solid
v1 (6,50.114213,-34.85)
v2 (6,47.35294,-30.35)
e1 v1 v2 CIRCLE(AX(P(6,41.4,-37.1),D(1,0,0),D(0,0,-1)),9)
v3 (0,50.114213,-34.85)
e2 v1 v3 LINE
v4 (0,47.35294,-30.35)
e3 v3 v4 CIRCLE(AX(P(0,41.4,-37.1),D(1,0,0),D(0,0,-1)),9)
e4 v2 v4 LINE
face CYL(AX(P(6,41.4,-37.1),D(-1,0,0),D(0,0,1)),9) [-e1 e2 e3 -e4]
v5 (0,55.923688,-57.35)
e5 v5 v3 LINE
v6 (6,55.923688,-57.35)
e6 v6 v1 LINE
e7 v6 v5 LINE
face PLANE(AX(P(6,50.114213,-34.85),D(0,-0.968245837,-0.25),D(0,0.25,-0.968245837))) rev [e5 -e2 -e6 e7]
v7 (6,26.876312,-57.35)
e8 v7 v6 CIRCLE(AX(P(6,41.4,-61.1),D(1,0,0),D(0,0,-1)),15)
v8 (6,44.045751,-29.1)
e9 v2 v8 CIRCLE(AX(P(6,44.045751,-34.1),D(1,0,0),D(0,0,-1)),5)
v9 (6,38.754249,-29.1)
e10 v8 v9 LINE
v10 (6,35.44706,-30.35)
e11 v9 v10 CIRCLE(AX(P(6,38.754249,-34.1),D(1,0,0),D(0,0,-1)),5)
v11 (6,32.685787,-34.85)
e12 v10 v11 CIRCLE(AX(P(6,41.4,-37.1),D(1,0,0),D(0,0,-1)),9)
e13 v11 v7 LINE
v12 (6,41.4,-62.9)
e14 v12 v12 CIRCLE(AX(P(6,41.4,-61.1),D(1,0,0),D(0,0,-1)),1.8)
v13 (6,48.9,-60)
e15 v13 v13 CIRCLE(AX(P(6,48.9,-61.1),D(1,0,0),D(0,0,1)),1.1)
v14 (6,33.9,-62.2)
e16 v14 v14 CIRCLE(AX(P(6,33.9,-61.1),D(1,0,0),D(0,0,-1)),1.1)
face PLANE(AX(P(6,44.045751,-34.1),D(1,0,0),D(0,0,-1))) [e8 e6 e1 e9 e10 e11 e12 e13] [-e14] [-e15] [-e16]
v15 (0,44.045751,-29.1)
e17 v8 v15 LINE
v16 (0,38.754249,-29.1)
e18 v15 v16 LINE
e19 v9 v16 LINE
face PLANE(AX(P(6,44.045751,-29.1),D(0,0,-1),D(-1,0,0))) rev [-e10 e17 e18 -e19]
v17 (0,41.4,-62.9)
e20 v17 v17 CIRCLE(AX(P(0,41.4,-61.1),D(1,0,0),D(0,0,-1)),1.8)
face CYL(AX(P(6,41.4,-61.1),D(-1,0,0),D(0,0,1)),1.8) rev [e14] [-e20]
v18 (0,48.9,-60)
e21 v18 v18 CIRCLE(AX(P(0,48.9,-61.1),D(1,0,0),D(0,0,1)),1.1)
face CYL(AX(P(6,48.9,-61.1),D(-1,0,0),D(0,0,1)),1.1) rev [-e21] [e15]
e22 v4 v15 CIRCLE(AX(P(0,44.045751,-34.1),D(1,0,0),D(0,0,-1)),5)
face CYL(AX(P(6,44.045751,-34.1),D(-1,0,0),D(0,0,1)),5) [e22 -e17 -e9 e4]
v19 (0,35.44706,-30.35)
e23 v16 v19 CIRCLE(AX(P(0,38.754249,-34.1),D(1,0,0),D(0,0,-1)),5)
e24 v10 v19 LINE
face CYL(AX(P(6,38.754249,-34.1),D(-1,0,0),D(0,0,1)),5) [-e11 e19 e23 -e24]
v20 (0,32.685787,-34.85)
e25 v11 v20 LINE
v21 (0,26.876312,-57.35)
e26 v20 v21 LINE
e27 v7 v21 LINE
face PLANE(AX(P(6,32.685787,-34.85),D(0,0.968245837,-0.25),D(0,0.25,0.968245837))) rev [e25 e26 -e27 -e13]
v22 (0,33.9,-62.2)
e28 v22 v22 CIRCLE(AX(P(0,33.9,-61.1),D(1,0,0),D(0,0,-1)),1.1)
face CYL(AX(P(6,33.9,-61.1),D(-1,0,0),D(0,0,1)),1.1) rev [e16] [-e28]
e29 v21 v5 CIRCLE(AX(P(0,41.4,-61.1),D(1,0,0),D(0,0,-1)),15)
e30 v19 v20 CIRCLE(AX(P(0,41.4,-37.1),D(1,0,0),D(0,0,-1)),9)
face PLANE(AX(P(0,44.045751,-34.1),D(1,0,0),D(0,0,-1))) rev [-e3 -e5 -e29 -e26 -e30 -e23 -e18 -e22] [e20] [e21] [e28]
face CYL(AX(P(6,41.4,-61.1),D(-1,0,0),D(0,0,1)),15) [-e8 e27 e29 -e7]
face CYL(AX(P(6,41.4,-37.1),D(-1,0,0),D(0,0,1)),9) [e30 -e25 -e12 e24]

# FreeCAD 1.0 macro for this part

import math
import FreeCAD as App
import Part
import Sketcher

V = App.Vector
Q = App.Units.Quantity

doc = App.newDocument("Part")
body = doc.addObject("PartDesign::Body", "Body")

# Sketch on YZ plane
sketch1 = body.newObject("Sketcher::SketchObject", "Sketch")
sketch1.AttachmentSupport = (doc.getObject("YZ_Plane"), [""])
sketch1.MapMode = "FlatFace"
sketch1.addGeometry([
    Part.LineSegment(V(44.045751, -29.1, 0), V(38.754249, -29.1, 0)),  # 0
    Part.ArcOfCircle(Part.Circle(V(38.754249, -34.1, 0), V(0, 0, 1), 5), math.radians(90), math.radians(131.409622)),  # 1
    Part.ArcOfCircle(Part.Circle(V(41.4, -37.1, 0), V(0, 0, 1), 9), math.radians(131.409622), math.radians(165.522488)),  # 2
    Part.LineSegment(V(32.685787, -34.85, 0), V(26.876312, -57.35, 0)),  # 3
    Part.ArcOfCircle(Part.Circle(V(41.4, -61.1, 0), V(0, 0, 1), 15), math.radians(165.522488), math.radians(374.477512)),  # 4
    Part.LineSegment(V(55.923688, -57.35, 0), V(50.114213, -34.85, 0)),  # 5
    Part.ArcOfCircle(Part.Circle(V(41.4, -37.1, 0), V(0, 0, 1), 9), math.radians(14.477512), math.radians(48.590378)),  # 6
    Part.ArcOfCircle(Part.Circle(V(44.045751, -34.1, 0), V(0, 0, 1), 5), math.radians(48.590378), math.radians(90)),  # 7
    Part.Circle(V(33.9, -61.1, 0), V(0, 0, 1), 1.1),  # 8
    Part.Circle(V(41.4, -61.1, 0), V(0, 0, 1), 1.8),  # 9
    Part.Circle(V(48.9, -61.1, 0), V(0, 0, 1), 1.1),  # 10
], False)
sketch1.addConstraint([
    Sketcher.Constraint("Tangent", 0, 2, 1, 1),
    Sketcher.Constraint("Tangent", 1, 2, 2, 1),
    Sketcher.Constraint("Tangent", 2, 2, 3, 1),
    Sketcher.Constraint("Tangent", 3, 2, 4, 1),
    Sketcher.Constraint("Tangent", 4, 2, 5, 1),
    Sketcher.Constraint("Tangent", 5, 2, 6, 1),
    Sketcher.Constraint("Tangent", 6, 2, 7, 1),
    Sketcher.Constraint("Tangent", 7, 2, 0, 1),
    Sketcher.Constraint("Horizontal", 0),
    Sketcher.Constraint("Coincident", 6, 3, 2, 3),
    Sketcher.Constraint("Coincident", 9, 3, 4, 3),
    Sketcher.Constraint("Equal", 2, 6),
    Sketcher.Constraint("Equal", 1, 7),
    Sketcher.Constraint("Equal", 8, 10),
    Sketcher.Constraint("Horizontal", 4, 3, 8, 3),
    Sketcher.Constraint("Horizontal", 9, 3, 10, 3),
    Sketcher.Constraint("Horizontal", 3, 2, 4, 2),
    Sketcher.Constraint("Radius", 1, Q("5 mm")),
    Sketcher.Constraint("Radius", 2, Q("9 mm")),
    Sketcher.Constraint("Radius", 4, Q("15 mm")),
    Sketcher.Constraint("Diameter", 8, Q("2.2 mm")),
    Sketcher.Constraint("Diameter", 9, Q("3.6 mm")),
    Sketcher.Constraint("DistanceY", 2, 3, 1, 3, Q("3 mm")),
    Sketcher.Constraint("DistanceY", 4, 3, 2, 3, Q("24 mm")),
    Sketcher.Constraint("DistanceX", 8, 3, 10, 3, Q("15 mm")),
    Sketcher.Constraint("DistanceY", 1, 3, -1, 1, Q("34.1 mm")),
    Sketcher.Constraint("DistanceX", -1, 1, 2, 3, Q("41.4 mm")),
    Sketcher.Constraint("DistanceX", -1, 1, 8, 3, Q("33.9 mm")),
])
pad1 = body.newObject("PartDesign::Pad", "Pad")
pad1.Profile = sketch1
pad1.Length = 6

doc.recompute()
